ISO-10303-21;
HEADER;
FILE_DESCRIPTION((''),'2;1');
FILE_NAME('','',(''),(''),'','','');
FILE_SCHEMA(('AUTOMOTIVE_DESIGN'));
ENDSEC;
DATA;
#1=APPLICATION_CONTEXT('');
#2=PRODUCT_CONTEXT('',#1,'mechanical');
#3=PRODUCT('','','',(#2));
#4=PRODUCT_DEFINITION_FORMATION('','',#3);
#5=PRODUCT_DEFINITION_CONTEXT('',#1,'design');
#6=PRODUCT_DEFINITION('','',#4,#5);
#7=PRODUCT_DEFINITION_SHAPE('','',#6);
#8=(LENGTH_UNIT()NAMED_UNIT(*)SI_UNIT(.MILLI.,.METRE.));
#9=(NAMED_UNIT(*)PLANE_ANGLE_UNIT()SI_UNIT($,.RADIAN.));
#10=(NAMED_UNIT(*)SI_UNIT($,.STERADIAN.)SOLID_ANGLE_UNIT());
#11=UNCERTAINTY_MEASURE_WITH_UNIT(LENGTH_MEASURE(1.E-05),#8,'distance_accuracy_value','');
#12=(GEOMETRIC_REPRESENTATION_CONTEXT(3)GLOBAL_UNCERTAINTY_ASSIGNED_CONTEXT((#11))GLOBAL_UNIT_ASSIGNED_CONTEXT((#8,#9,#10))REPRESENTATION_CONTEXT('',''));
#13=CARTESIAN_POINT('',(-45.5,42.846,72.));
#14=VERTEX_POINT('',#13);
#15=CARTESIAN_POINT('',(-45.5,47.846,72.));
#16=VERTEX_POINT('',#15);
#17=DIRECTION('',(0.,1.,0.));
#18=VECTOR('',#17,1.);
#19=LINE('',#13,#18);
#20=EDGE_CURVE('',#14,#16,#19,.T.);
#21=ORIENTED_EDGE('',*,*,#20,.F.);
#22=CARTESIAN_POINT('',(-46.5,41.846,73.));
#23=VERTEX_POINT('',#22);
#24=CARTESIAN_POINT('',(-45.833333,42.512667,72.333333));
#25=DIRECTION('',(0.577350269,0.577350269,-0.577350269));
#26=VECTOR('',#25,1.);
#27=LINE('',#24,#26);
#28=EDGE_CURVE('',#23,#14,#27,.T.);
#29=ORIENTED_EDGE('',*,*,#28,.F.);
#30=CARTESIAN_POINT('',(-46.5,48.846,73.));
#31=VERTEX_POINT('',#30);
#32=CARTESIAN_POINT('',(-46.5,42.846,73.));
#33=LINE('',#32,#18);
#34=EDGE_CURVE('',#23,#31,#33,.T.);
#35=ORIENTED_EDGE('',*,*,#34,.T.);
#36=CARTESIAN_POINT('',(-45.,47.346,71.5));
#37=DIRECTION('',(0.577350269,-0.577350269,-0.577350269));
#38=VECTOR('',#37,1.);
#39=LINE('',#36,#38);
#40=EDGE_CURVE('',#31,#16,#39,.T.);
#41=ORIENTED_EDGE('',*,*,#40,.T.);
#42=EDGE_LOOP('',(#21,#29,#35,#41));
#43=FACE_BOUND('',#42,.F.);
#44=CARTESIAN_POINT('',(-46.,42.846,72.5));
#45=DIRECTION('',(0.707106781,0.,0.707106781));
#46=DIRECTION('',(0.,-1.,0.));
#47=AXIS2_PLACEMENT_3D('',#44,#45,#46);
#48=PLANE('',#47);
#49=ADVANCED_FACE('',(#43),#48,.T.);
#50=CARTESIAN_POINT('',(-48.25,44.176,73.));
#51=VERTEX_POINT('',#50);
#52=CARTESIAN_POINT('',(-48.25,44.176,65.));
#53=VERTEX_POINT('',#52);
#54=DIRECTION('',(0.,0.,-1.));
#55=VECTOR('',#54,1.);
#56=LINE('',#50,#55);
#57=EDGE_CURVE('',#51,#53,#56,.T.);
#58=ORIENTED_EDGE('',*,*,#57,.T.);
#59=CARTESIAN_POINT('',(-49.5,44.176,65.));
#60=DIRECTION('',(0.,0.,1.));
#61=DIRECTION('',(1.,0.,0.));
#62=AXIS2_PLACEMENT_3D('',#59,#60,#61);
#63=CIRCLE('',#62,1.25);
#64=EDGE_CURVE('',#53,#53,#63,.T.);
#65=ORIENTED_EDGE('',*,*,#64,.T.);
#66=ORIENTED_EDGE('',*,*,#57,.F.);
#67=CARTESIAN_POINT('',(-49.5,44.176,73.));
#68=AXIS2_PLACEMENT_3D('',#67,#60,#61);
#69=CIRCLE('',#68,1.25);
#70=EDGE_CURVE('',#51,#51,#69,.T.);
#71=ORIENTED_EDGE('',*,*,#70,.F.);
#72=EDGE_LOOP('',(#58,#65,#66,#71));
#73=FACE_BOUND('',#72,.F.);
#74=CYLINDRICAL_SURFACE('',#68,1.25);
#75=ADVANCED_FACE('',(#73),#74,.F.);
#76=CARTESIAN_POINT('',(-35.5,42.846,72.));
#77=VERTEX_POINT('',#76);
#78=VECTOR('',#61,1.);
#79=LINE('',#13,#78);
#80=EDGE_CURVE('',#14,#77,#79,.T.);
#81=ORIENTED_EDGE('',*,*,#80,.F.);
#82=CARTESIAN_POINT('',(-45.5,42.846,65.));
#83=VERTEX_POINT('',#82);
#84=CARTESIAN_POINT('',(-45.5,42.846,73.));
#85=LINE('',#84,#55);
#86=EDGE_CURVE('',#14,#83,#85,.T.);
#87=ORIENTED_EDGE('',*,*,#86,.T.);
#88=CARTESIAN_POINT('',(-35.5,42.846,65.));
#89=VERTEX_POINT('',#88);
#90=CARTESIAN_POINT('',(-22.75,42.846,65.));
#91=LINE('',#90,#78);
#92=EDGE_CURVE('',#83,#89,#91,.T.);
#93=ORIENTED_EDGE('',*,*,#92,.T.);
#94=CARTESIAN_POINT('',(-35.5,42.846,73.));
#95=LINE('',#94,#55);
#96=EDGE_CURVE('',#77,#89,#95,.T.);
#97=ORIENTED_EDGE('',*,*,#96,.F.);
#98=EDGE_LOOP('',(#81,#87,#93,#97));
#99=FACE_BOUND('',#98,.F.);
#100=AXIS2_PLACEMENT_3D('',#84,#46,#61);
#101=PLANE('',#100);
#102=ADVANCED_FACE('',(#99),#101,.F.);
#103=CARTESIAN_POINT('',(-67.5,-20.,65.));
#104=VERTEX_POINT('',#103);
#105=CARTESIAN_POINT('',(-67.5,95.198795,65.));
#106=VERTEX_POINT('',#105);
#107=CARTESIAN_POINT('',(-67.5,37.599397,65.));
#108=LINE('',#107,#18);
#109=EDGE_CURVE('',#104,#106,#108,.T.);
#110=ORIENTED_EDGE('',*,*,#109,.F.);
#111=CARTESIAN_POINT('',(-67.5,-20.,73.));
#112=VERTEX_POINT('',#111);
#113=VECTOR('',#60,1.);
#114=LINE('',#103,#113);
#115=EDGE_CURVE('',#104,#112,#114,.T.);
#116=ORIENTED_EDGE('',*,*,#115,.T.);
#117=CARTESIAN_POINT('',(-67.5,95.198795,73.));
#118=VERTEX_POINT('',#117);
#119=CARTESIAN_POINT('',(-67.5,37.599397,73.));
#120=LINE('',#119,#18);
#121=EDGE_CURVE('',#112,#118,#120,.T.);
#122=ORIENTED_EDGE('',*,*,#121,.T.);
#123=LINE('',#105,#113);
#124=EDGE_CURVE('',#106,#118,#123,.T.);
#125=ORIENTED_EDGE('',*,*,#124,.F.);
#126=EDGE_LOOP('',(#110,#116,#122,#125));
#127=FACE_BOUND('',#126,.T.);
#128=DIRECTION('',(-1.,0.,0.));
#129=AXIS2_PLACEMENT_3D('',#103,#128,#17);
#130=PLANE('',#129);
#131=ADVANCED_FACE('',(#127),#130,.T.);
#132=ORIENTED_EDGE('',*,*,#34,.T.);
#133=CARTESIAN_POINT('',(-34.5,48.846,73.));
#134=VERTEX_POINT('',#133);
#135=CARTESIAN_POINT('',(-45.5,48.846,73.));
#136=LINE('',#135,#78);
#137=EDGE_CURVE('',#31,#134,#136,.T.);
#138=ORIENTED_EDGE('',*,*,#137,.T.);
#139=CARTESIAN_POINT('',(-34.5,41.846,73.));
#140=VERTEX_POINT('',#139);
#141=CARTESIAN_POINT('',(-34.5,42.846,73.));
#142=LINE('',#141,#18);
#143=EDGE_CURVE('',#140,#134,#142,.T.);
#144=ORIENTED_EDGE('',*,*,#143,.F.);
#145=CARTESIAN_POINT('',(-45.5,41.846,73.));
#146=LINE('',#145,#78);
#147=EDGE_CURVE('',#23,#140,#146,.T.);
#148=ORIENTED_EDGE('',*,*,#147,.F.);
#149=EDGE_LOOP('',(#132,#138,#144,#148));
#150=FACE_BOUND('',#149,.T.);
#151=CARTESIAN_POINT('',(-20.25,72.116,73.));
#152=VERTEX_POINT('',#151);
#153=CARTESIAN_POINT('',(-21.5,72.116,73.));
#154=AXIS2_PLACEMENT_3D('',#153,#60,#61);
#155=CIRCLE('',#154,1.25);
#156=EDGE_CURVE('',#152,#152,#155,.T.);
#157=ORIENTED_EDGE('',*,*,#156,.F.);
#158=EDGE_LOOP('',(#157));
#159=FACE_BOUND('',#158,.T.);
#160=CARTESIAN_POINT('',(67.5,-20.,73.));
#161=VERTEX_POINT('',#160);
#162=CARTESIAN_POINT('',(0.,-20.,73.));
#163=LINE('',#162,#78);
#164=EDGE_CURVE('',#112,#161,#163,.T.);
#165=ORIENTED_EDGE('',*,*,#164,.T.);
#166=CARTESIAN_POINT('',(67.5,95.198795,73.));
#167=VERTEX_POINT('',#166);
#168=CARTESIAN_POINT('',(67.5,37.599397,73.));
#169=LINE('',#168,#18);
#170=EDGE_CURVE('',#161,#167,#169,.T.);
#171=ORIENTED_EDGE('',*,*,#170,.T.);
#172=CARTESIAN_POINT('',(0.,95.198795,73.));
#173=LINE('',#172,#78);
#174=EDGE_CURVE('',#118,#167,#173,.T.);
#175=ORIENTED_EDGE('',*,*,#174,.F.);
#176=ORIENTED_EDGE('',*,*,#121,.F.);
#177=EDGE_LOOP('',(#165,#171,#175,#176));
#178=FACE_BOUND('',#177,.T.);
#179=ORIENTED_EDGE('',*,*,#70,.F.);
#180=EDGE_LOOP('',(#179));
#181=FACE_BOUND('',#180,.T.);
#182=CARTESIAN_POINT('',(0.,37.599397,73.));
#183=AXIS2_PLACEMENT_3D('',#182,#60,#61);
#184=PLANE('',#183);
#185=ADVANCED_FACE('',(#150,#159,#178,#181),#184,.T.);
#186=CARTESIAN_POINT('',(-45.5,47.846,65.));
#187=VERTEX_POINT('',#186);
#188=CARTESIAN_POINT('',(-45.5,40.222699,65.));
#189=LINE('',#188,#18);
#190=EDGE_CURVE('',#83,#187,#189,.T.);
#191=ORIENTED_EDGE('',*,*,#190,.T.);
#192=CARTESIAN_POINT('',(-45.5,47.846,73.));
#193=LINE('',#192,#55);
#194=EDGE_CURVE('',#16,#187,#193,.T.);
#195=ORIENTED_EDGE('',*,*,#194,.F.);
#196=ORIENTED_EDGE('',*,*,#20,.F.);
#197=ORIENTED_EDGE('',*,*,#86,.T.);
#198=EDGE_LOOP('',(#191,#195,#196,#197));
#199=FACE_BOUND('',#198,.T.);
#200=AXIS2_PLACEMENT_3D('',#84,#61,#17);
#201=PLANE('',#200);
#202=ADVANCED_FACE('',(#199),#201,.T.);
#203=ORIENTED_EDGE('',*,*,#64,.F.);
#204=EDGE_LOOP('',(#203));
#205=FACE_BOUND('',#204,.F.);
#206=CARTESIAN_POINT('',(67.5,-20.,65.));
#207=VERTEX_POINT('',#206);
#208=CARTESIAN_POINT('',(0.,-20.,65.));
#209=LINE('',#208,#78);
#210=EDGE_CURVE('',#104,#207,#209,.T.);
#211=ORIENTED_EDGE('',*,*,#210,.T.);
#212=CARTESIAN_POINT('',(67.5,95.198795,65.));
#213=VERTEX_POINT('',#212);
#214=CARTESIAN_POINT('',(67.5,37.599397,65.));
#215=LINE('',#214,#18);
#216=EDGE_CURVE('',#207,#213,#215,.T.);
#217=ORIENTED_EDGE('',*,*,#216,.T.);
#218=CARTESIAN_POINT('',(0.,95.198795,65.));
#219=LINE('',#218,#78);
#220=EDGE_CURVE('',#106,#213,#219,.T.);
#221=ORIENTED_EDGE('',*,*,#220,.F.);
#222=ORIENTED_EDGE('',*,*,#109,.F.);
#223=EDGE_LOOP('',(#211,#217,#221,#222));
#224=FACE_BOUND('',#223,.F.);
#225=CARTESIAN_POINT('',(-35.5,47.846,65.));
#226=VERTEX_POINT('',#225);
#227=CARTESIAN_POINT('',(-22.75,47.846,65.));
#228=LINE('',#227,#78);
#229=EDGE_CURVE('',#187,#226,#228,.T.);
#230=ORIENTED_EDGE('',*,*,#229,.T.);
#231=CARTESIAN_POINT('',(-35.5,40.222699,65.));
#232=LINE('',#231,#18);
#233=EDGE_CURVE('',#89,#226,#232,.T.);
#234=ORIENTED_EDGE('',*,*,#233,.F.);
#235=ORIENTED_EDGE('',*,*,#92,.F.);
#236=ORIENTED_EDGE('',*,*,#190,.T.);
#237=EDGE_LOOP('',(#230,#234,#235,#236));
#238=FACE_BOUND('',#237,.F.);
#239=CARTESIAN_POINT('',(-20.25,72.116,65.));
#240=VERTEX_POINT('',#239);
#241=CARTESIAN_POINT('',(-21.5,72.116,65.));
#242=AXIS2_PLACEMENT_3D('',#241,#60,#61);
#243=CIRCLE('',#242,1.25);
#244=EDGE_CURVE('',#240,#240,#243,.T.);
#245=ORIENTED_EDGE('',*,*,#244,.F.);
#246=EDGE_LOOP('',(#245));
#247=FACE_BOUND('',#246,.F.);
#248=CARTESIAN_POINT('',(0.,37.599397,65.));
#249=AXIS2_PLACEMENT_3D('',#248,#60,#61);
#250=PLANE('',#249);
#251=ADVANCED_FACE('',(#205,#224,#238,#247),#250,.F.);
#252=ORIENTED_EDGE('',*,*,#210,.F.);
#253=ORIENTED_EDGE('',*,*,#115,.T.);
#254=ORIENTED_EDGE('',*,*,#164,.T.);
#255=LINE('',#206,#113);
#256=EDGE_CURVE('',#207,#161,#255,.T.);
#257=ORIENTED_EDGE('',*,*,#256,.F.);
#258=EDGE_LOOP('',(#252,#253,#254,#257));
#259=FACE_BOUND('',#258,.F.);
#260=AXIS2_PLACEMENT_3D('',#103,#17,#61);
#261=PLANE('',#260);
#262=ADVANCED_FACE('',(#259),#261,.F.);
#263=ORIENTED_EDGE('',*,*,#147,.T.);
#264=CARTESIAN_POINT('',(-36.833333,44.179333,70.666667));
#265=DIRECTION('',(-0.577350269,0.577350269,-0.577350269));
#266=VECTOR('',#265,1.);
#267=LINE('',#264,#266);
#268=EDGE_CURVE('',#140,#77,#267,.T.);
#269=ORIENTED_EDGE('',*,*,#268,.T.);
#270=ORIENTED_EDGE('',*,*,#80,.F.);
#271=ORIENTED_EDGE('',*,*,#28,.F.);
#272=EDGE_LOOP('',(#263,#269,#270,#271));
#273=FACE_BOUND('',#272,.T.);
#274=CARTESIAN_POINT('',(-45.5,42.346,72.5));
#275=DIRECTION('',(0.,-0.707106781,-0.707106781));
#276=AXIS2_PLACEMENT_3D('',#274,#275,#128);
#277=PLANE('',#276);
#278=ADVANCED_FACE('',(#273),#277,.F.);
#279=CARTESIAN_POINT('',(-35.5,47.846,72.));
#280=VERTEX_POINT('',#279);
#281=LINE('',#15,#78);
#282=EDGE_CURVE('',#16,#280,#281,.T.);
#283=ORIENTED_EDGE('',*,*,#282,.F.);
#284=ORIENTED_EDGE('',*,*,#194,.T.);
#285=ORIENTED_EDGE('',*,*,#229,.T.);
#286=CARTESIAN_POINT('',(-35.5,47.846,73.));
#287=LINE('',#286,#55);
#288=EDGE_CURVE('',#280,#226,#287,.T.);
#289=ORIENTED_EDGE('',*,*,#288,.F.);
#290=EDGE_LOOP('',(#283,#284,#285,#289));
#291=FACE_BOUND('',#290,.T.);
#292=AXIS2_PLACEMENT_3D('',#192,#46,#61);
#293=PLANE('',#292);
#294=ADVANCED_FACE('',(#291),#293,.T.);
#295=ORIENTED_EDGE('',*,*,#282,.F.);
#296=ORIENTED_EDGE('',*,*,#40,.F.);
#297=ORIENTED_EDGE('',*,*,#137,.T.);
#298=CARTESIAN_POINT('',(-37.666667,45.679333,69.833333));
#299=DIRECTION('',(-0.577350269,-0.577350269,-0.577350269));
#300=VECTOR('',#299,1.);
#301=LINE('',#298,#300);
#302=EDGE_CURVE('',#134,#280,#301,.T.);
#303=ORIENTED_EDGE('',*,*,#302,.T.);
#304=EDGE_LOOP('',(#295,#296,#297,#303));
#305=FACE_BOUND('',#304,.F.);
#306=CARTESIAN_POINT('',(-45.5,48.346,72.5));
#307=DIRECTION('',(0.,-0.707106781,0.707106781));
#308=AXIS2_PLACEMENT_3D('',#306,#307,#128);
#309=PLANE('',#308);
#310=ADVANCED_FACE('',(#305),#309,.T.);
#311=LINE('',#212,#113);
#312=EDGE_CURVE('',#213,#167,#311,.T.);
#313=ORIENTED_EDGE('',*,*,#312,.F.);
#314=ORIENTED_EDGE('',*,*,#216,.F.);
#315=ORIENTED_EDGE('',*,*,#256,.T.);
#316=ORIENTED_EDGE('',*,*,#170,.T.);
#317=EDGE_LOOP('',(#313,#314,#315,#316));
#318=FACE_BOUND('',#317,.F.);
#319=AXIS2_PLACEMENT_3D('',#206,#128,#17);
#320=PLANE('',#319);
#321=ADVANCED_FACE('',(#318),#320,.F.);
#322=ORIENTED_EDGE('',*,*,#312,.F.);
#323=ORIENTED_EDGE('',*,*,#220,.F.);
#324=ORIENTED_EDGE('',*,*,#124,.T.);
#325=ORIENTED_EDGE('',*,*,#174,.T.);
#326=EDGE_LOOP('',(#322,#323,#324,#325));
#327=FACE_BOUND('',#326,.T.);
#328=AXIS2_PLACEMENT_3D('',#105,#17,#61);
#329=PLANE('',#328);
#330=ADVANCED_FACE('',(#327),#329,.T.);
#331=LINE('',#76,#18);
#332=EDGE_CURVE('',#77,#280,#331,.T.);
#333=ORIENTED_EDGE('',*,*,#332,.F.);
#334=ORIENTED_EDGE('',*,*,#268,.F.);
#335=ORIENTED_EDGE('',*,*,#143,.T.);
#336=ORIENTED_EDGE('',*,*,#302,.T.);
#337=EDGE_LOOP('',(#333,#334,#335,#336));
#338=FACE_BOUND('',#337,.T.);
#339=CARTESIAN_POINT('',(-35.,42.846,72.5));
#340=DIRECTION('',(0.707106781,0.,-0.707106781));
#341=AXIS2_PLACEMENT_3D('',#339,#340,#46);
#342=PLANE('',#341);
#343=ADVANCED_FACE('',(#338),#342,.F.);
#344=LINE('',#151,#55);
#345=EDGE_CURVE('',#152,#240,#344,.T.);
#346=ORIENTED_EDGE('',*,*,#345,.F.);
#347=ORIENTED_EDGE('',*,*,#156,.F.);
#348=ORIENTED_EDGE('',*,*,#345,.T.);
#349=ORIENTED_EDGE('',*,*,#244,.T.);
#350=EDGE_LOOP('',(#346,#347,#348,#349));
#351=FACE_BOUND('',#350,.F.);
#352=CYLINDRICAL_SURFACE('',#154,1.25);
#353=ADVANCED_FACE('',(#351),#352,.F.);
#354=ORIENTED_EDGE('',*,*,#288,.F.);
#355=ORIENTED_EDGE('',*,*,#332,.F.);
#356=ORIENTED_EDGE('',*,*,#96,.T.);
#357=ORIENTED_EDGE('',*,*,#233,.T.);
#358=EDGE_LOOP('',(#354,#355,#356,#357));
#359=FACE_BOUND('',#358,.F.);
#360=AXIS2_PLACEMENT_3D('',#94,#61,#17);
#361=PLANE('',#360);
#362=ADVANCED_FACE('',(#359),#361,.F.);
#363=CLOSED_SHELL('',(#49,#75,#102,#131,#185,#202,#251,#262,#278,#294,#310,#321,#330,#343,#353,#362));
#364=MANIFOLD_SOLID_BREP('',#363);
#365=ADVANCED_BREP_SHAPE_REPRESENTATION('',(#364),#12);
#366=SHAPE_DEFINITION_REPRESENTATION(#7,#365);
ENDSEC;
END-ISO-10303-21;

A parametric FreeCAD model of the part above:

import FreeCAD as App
import Part
import Sketcher


def edges_at(feature, points):
    """Names of the edges that pass closest to the given points."""
    edges = feature.Shape.Edges
    near = lambda p: min(range(len(edges)), key=lambda i: edges[i].distToShape(Part.Vertex(*p))[0])
    return sorted({f"Edge{near(p) + 1}" for p in points})

doc = App.newDocument("Part")
body = doc.addObject("PartDesign::Body", "Body")

# Sketch on XY plane
sketch1 = body.newObject("Sketcher::SketchObject", "Sketch")
sketch1.AttachmentSupport = (doc.getObject("XY_Plane"), [""])
sketch1.MapMode = "FlatFace"
sketch1.AttachmentOffset = App.Placement(App.Vector(0, 0, 65), App.Rotation())
sketch1.addGeometry([
    Part.LineSegment(App.Vector(-68, 95, 0), App.Vector(-68, -20, 0)),
    Part.LineSegment(App.Vector(-68, -20, 0), App.Vector(68, -20, 0)),
    Part.LineSegment(App.Vector(68, -20, 0), App.Vector(68, 95, 0)),
    Part.LineSegment(App.Vector(68, 95, 0), App.Vector(-68, 95, 0)),
], False)
sketch1.addConstraint([
    Sketcher.Constraint("Coincident", 0, 2, 1, 1),
    Sketcher.Constraint("Coincident", 1, 2, 2, 1),
    Sketcher.Constraint("Coincident", 2, 2, 3, 1),
    Sketcher.Constraint("Coincident", 3, 2, 0, 1),
    Sketcher.Constraint("Vertical", 0),
    Sketcher.Constraint("Horizontal", 1),
    Sketcher.Constraint("Vertical", 2),
    Sketcher.Constraint("Horizontal", 3),
    Sketcher.Constraint("DistanceX", 1, 1, 1, 2, 135.0),
    Sketcher.Constraint("DistanceY", 0, 2, -1, 1, 20.0),
    Sketcher.Constraint("DistanceX", 0, 2, -1, 1, 67.5),
    Sketcher.Constraint("DistanceY", 0, 2, 0, 1, 115.198795),
])
pad1 = body.newObject("PartDesign::Pad", "Pad")
pad1.Profile = sketch1
pad1.Length = 8

# Sketch on XY plane
sketch2 = body.newObject("Sketcher::SketchObject", "Sketch001")
sketch2.AttachmentSupport = (doc.getObject("XY_Plane"), [""])
sketch2.MapMode = "FlatFace"
sketch2.AttachmentOffset = App.Placement(App.Vector(0, 0, 73), App.Rotation())
sketch2.addGeometry([
    Part.LineSegment(App.Vector(-46, 48, 0), App.Vector(-46, 43, 0)),
    Part.LineSegment(App.Vector(-46, 43, 0), App.Vector(-36, 43, 0)),
    Part.LineSegment(App.Vector(-36, 43, 0), App.Vector(-36, 48, 0)),
    Part.LineSegment(App.Vector(-36, 48, 0), App.Vector(-46, 48, 0)),
], False)
sketch2.addConstraint([
    Sketcher.Constraint("Coincident", 0, 2, 1, 1),
    Sketcher.Constraint("Coincident", 1, 2, 2, 1),
    Sketcher.Constraint("Coincident", 2, 2, 3, 1),
    Sketcher.Constraint("Coincident", 3, 2, 0, 1),
    Sketcher.Constraint("Vertical", 0),
    Sketcher.Constraint("Horizontal", 1),
    Sketcher.Constraint("Vertical", 2),
    Sketcher.Constraint("Horizontal", 3),
    Sketcher.Constraint("DistanceX", 1, 1, 1, 2, 10.0),
    Sketcher.Constraint("DistanceY", 0, 2, 0, 1, 5.0),
    Sketcher.Constraint("DistanceX", 0, 2, -1, 1, 45.5),
    Sketcher.Constraint("DistanceY", -1, 1, 0, 2, 42.846),
])
pocket1 = body.newObject("PartDesign::Pocket", "Pocket")
pocket1.Profile = sketch2
pocket1.Type = "ThroughAll"

# Sketch on XY plane
sketch3 = body.newObject("Sketcher::SketchObject", "Sketch002")
sketch3.AttachmentSupport = (doc.getObject("XY_Plane"), [""])
sketch3.MapMode = "FlatFace"
sketch3.AttachmentOffset = App.Placement(App.Vector(0, 0, 73), App.Rotation())
sketch3.addGeometry([
    Part.Circle(App.Vector(-21.5, 72.1, 0), App.Vector(0, 0, 1), 1.2),
    Part.Circle(App.Vector(-49.5, 44.2, 0), App.Vector(0, 0, 1), 1.2),
], False)
sketch3.addConstraint([
    Sketcher.Constraint("Equal", 0, 1),
    Sketcher.Constraint("Diameter", 0, 2.5),
    Sketcher.Constraint("DistanceX", 1, 3, 0, 3, 28.0),
    Sketcher.Constraint("DistanceX", 0, 3, -1, 1, 21.5),
    Sketcher.Constraint("DistanceY", 1, 3, 0, 3, 27.94),
    Sketcher.Constraint("DistanceY", -1, 1, 0, 3, 72.116),
])
pocket2 = body.newObject("PartDesign::Pocket", "Pocket001")
pocket2.Profile = sketch3
pocket2.Type = "ThroughAll"
doc.recompute()

chamfer = body.newObject("PartDesign::Chamfer", "Chamfer")
chamfer.Base = (pocket2, edges_at(pocket2, [
    (-40.5, 47.846, 73),
    (-45.5, 45.346, 73),
    (-40.5, 42.846, 73),
    (-35.5, 45.346, 73),
]))
chamfer.Size = 1

doc.recompute()
